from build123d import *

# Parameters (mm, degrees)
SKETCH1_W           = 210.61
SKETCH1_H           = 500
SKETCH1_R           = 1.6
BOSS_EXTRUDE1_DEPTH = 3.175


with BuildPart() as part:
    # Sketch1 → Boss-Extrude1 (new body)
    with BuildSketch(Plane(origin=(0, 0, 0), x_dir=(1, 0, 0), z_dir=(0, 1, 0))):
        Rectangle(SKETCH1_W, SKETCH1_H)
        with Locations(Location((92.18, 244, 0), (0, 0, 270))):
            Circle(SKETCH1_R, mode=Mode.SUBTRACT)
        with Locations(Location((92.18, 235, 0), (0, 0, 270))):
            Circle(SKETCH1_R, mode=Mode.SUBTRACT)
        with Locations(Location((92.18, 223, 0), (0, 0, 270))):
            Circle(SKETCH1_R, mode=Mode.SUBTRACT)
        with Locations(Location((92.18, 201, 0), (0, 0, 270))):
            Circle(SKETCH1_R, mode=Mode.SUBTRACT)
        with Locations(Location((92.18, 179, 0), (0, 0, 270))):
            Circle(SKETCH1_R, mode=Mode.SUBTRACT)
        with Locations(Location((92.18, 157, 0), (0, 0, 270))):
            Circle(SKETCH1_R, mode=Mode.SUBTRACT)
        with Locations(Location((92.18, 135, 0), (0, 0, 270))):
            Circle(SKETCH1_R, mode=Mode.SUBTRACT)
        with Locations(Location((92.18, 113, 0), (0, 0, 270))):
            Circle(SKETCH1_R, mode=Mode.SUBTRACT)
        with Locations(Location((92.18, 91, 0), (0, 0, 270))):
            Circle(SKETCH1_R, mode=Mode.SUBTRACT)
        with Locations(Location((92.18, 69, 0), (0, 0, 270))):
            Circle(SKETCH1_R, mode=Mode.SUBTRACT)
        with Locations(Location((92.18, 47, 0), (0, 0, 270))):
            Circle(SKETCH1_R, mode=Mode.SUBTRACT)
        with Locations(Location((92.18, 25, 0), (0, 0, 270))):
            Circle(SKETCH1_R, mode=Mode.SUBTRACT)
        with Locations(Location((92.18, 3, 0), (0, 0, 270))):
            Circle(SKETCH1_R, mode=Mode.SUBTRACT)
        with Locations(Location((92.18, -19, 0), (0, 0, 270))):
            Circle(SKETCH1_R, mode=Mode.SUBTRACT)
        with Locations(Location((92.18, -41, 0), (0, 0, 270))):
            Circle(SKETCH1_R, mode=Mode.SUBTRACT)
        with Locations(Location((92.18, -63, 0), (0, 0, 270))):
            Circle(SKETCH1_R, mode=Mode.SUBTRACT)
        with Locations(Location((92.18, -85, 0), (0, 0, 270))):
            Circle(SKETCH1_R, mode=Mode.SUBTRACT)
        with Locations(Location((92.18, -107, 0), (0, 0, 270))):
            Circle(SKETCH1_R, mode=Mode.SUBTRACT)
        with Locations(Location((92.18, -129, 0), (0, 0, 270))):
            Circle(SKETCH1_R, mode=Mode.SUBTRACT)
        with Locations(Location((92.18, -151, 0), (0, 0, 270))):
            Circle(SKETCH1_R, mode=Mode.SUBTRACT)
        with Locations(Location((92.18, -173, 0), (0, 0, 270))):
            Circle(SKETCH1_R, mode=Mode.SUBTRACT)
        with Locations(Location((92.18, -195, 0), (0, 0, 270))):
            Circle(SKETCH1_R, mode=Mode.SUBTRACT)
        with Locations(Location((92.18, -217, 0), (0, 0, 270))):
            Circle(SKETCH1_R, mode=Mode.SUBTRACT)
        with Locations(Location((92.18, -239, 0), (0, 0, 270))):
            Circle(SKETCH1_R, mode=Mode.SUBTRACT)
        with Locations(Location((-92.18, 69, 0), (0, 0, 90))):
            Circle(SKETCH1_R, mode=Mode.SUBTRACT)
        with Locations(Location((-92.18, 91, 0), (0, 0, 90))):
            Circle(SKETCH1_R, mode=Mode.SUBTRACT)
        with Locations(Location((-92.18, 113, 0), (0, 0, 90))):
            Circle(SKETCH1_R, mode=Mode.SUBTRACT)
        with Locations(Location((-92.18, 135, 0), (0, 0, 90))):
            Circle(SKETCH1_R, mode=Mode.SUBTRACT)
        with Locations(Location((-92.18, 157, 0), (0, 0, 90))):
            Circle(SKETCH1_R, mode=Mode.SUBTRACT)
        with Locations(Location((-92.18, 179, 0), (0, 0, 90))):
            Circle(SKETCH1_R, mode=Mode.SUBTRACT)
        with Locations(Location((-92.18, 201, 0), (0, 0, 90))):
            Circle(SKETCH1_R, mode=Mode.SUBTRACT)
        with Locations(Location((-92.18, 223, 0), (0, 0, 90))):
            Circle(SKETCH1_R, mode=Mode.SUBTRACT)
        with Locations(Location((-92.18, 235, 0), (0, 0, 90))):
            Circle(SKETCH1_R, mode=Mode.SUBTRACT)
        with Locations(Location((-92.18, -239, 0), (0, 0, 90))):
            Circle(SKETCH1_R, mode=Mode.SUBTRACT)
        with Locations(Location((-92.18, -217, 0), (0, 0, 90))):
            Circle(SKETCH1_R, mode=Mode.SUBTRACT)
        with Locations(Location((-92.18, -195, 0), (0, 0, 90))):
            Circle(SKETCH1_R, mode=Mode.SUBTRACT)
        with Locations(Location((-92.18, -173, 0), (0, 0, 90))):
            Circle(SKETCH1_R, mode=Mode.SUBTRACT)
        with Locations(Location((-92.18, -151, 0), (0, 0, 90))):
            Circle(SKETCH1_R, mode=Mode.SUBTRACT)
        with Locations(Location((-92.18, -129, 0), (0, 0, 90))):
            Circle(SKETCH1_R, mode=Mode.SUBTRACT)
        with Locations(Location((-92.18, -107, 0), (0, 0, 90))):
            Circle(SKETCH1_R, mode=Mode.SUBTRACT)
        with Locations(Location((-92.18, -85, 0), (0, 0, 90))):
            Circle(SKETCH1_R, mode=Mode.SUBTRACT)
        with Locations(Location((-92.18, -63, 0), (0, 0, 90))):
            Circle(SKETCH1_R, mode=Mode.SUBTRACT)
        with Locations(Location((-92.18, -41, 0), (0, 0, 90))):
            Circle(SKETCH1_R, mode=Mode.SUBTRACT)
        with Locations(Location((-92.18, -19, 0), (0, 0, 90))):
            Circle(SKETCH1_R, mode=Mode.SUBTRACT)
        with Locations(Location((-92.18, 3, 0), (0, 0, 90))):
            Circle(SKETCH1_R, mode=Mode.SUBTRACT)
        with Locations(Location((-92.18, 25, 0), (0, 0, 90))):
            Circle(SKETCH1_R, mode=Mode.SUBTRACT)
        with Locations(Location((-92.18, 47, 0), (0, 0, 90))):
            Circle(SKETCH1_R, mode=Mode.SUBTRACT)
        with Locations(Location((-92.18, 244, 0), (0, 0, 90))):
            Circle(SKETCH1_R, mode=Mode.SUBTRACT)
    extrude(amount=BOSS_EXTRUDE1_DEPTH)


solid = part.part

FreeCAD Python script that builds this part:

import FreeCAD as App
import Part
import Sketcher
from FreeCAD import Vector


def add_polygon(sketch, points):
    """Adds a closed chain of lines whose ends are joined by coincident constraints."""
    first, n = sketch.GeometryCount, len(points)
    for a, b in zip(points, points[1:] + points[:1]):
        sketch.addGeometry(Part.LineSegment(App.Vector(*a, 0), App.Vector(*b, 0)), False)
    for i in range(n):
        sketch.addConstraint(Sketcher.Constraint("Coincident", first + i, 2, first + (i + 1) % n, 1))

doc = App.newDocument("Part")
body = doc.addObject("PartDesign::Body", "Body")

sketch1 = body.newObject("Sketcher::SketchObject", "Sketch")
sketch1.AttachmentSupport = (doc.getObject("XZ_Plane"), [""])
sketch1.MapMode = "FlatFace"
add_polygon(sketch1, [(-105.305, -250), (-105.305, 250), (105.305, 250), (105.305, -250)])
sketch1.addGeometry(Part.Circle(Vector(-92.18, 239, 0), Vector(0, 0, 1), 1.6), False)
sketch1.addGeometry(Part.Circle(Vector(-92.18, 217, 0), Vector(0, 0, 1), 1.6), False)
sketch1.addGeometry(Part.Circle(Vector(-92.18, 195, 0), Vector(0, 0, 1), 1.6), False)
sketch1.addGeometry(Part.Circle(Vector(-92.18, 173, 0), Vector(0, 0, 1), 1.6), False)
sketch1.addGeometry(Part.Circle(Vector(-92.18, 151, 0), Vector(0, 0, 1), 1.6), False)
sketch1.addGeometry(Part.Circle(Vector(-92.18, 129, 0), Vector(0, 0, 1), 1.6), False)
sketch1.addGeometry(Part.Circle(Vector(-92.18, 107, 0), Vector(0, 0, 1), 1.6), False)
sketch1.addGeometry(Part.Circle(Vector(-92.18, 85, 0), Vector(0, 0, 1), 1.6), False)
sketch1.addGeometry(Part.Circle(Vector(-92.18, 63, 0), Vector(0, 0, 1), 1.6), False)
sketch1.addGeometry(Part.Circle(Vector(-92.18, 41, 0), Vector(0, 0, 1), 1.6), False)
sketch1.addGeometry(Part.Circle(Vector(-92.18, 19, 0), Vector(0, 0, 1), 1.6), False)
sketch1.addGeometry(Part.Circle(Vector(92.18, 239, 0), Vector(0, 0, 1), 1.6), False)
sketch1.addGeometry(Part.Circle(Vector(92.18, 217, 0), Vector(0, 0, 1), 1.6), False)
sketch1.addGeometry(Part.Circle(Vector(92.18, 195, 0), Vector(0, 0, 1), 1.6), False)
sketch1.addGeometry(Part.Circle(Vector(92.18, 173, 0), Vector(0, 0, 1), 1.6), False)
sketch1.addGeometry(Part.Circle(Vector(92.18, 151, 0), Vector(0, 0, 1), 1.6), False)
sketch1.addGeometry(Part.Circle(Vector(92.18, 129, 0), Vector(0, 0, 1), 1.6), False)
sketch1.addGeometry(Part.Circle(Vector(92.18, 107, 0), Vector(0, 0, 1), 1.6), False)
sketch1.addGeometry(Part.Circle(Vector(92.18, 85, 0), Vector(0, 0, 1), 1.6), False)
sketch1.addGeometry(Part.Circle(Vector(92.18, 63, 0), Vector(0, 0, 1), 1.6), False)
sketch1.addGeometry(Part.Circle(Vector(92.18, 41, 0), Vector(0, 0, 1), 1.6), False)
sketch1.addGeometry(Part.Circle(Vector(92.18, 19, 0), Vector(0, 0, 1), 1.6), False)
sketch1.addGeometry(Part.Circle(Vector(-92.18, -3, 0), Vector(0, 0, 1), 1.6), False)
sketch1.addGeometry(Part.Circle(Vector(-92.18, -25, 0), Vector(0, 0, 1), 1.6), False)
sketch1.addGeometry(Part.Circle(Vector(-92.18, -47, 0), Vector(0, 0, 1), 1.6), False)
sketch1.addGeometry(Part.Circle(Vector(-92.18, -69, 0), Vector(0, 0, 1), 1.6), False)
sketch1.addGeometry(Part.Circle(Vector(-92.18, -91, 0), Vector(0, 0, 1), 1.6), False)
sketch1.addGeometry(Part.Circle(Vector(-92.18, -113, 0), Vector(0, 0, 1), 1.6), False)
sketch1.addGeometry(Part.Circle(Vector(-92.18, -135, 0), Vector(0, 0, 1), 1.6), False)
sketch1.addGeometry(Part.Circle(Vector(-92.18, -157, 0), Vector(0, 0, 1), 1.6), False)
sketch1.addGeometry(Part.Circle(Vector(-92.18, -179, 0), Vector(0, 0, 1), 1.6), False)
sketch1.addGeometry(Part.Circle(Vector(-92.18, -201, 0), Vector(0, 0, 1), 1.6), False)
sketch1.addGeometry(Part.Circle(Vector(-92.18, -223, 0), Vector(0, 0, 1), 1.6), False)
sketch1.addGeometry(Part.Circle(Vector(-92.18, -235, 0), Vector(0, 0, 1), 1.6), False)
sketch1.addGeometry(Part.Circle(Vector(-92.18, -244, 0), Vector(0, 0, 1), 1.6), False)
sketch1.addGeometry(Part.Circle(Vector(92.18, -3, 0), Vector(0, 0, 1), 1.6), False)
sketch1.addGeometry(Part.Circle(Vector(92.18, -25, 0), Vector(0, 0, 1), 1.6), False)
sketch1.addGeometry(Part.Circle(Vector(92.18, -47, 0), Vector(0, 0, 1), 1.6), False)
sketch1.addGeometry(Part.Circle(Vector(92.18, -69, 0), Vector(0, 0, 1), 1.6), False)
sketch1.addGeometry(Part.Circle(Vector(92.18, -91, 0), Vector(0, 0, 1), 1.6), False)
sketch1.addGeometry(Part.Circle(Vector(92.18, -113, 0), Vector(0, 0, 1), 1.6), False)
sketch1.addGeometry(Part.Circle(Vector(92.18, -135, 0), Vector(0, 0, 1), 1.6), False)
sketch1.addGeometry(Part.Circle(Vector(92.18, -157, 0), Vector(0, 0, 1), 1.6), False)
sketch1.addGeometry(Part.Circle(Vector(92.18, -179, 0), Vector(0, 0, 1), 1.6), False)
sketch1.addGeometry(Part.Circle(Vector(92.18, -201, 0), Vector(0, 0, 1), 1.6), False)
sketch1.addGeometry(Part.Circle(Vector(92.18, -223, 0), Vector(0, 0, 1), 1.6), False)
sketch1.addGeometry(Part.Circle(Vector(92.18, -235, 0), Vector(0, 0, 1), 1.6), False)
sketch1.addGeometry(Part.Circle(Vector(92.18, -244, 0), Vector(0, 0, 1), 1.6), False)
sketch1.addConstraint([
    Sketcher.Constraint("Vertical", 0),
    Sketcher.Constraint("Horizontal", 1),
    Sketcher.Constraint("Vertical", 2),
    Sketcher.Constraint("Horizontal", 3),
    Sketcher.Constraint("Equal", 4, 5),
    Sketcher.Constraint("Equal", 5, 6),
    Sketcher.Constraint("Equal", 6, 7),
    Sketcher.Constraint("Equal", 7, 8),
    Sketcher.Constraint("Equal", 8, 9),
    Sketcher.Constraint("Equal", 9, 10),
    Sketcher.Constraint("Equal", 10, 11),
    Sketcher.Constraint("Equal", 11, 12),
    Sketcher.Constraint("Equal", 12, 13),
    Sketcher.Constraint("Equal", 13, 14),
    Sketcher.Constraint("Equal", 14, 15),
    Sketcher.Constraint("Equal", 15, 16),
    Sketcher.Constraint("Equal", 16, 17),
    Sketcher.Constraint("Equal", 17, 18),
    Sketcher.Constraint("Equal", 18, 19),
    Sketcher.Constraint("Equal", 19, 20),
    Sketcher.Constraint("Equal", 20, 21),
    Sketcher.Constraint("Equal", 21, 22),
    Sketcher.Constraint("Equal", 22, 23),
    Sketcher.Constraint("Equal", 23, 24),
    Sketcher.Constraint("Equal", 24, 25),
    Sketcher.Constraint("Equal", 25, 26),
    Sketcher.Constraint("Equal", 26, 27),
    Sketcher.Constraint("Equal", 27, 28),
    Sketcher.Constraint("Equal", 28, 29),
    Sketcher.Constraint("Equal", 29, 30),
    Sketcher.Constraint("Equal", 30, 31),
    Sketcher.Constraint("Equal", 31, 32),
    Sketcher.Constraint("Equal", 32, 33),
    Sketcher.Constraint("Equal", 33, 34),
    Sketcher.Constraint("Equal", 34, 35),
    Sketcher.Constraint("Equal", 35, 36),
    Sketcher.Constraint("Equal", 36, 37),
    Sketcher.Constraint("Equal", 37, 38),
    Sketcher.Constraint("Equal", 38, 39),
    Sketcher.Constraint("Equal", 39, 40),
    Sketcher.Constraint("Equal", 40, 41),
    Sketcher.Constraint("Equal", 41, 42),
    Sketcher.Constraint("Equal", 42, 43),
    Sketcher.Constraint("Equal", 43, 44),
    Sketcher.Constraint("Equal", 44, 45),
    Sketcher.Constraint("Equal", 45, 46),
    Sketcher.Constraint("Equal", 46, 47),
    Sketcher.Constraint("Equal", 47, 48),
    Sketcher.Constraint("Equal", 48, 49),
    Sketcher.Constraint("Equal", 49, 50),
    Sketcher.Constraint("Equal", 50, 51),
    Sketcher.Constraint("Symmetric", 0, 2, 2, 2, -1, 1),
    Sketcher.Constraint("Symmetric", 4, 3, 15, 3, -2),
    Sketcher.Constraint("Symmetric", 5, 3, 16, 3, -2),
    Sketcher.Constraint("Symmetric", 6, 3, 17, 3, -2),
    Sketcher.Constraint("Symmetric", 7, 3, 18, 3, -2),
    Sketcher.Constraint("Symmetric", 8, 3, 19, 3, -2),
    Sketcher.Constraint("Symmetric", 9, 3, 20, 3, -2),
    Sketcher.Constraint("Symmetric", 10, 3, 21, 3, -2),
    Sketcher.Constraint("Symmetric", 11, 3, 22, 3, -2),
    Sketcher.Constraint("Symmetric", 12, 3, 23, 3, -2),
    Sketcher.Constraint("Symmetric", 13, 3, 24, 3, -2),
    Sketcher.Constraint("Symmetric", 14, 3, 25, 3, -2),
    Sketcher.Constraint("Symmetric", 26, 3, 39, 3, -2),
    Sketcher.Constraint("Symmetric", 27, 3, 40, 3, -2),
    Sketcher.Constraint("Symmetric", 28, 3, 41, 3, -2),
    Sketcher.Constraint("Symmetric", 29, 3, 42, 3, -2),
    Sketcher.Constraint("Symmetric", 30, 3, 43, 3, -2),
    Sketcher.Constraint("Symmetric", 31, 3, 44, 3, -2),
    Sketcher.Constraint("Symmetric", 32, 3, 45, 3, -2),
    Sketcher.Constraint("Symmetric", 33, 3, 46, 3, -2),
    Sketcher.Constraint("Symmetric", 34, 3, 47, 3, -2),
    Sketcher.Constraint("Symmetric", 35, 3, 48, 3, -2),
    Sketcher.Constraint("Symmetric", 36, 3, 49, 3, -2),
    Sketcher.Constraint("Symmetric", 37, 3, 50, 3, -2),
    Sketcher.Constraint("Symmetric", 38, 3, 51, 3, -2),
    Sketcher.Constraint("Vertical", 4, 3, 5, 3),
    Sketcher.Constraint("Vertical", 5, 3, 6, 3),
    Sketcher.Constraint("Vertical", 6, 3, 7, 3),
    Sketcher.Constraint("Vertical", 7, 3, 8, 3),
    Sketcher.Constraint("Vertical", 8, 3, 9, 3),
    Sketcher.Constraint("Vertical", 9, 3, 10, 3),
    Sketcher.Constraint("Vertical", 10, 3, 11, 3),
    Sketcher.Constraint("Vertical", 11, 3, 12, 3),
    Sketcher.Constraint("Vertical", 12, 3, 13, 3),
    Sketcher.Constraint("Vertical", 13, 3, 14, 3),
    Sketcher.Constraint("Vertical", 14, 3, 26, 3),
    Sketcher.Constraint("Vertical", 26, 3, 27, 3),
    Sketcher.Constraint("Vertical", 27, 3, 28, 3),
    Sketcher.Constraint("Vertical", 28, 3, 29, 3),
    Sketcher.Constraint("Vertical", 29, 3, 30, 3),
    Sketcher.Constraint("Vertical", 30, 3, 31, 3),
    Sketcher.Constraint("Vertical", 31, 3, 32, 3),
    Sketcher.Constraint("Vertical", 32, 3, 33, 3),
    Sketcher.Constraint("Vertical", 33, 3, 34, 3),
    Sketcher.Constraint("Vertical", 34, 3, 35, 3),
    Sketcher.Constraint("Vertical", 35, 3, 36, 3),
    Sketcher.Constraint("Vertical", 36, 3, 37, 3),
    Sketcher.Constraint("Vertical", 37, 3, 38, 3),
    Sketcher.Constraint("Diameter", 4, 3.2),
    Sketcher.Constraint("DistanceY", 0, 1, 0, 2, 500.0),
    Sketcher.Constraint("DistanceY", -1, 1, 4, 3, 239.0),
    Sketcher.Constraint("DistanceY", -1, 1, 5, 3, 217.0),
    Sketcher.Constraint("DistanceY", -1, 1, 6, 3, 195.0),
    Sketcher.Constraint("DistanceY", -1, 1, 7, 3, 173.0),
    Sketcher.Constraint("DistanceY", -1, 1, 8, 3, 151.0),
    Sketcher.Constraint("DistanceY", -1, 1, 9, 3, 129.0),
    Sketcher.Constraint("DistanceY", -1, 1, 10, 3, 107.0),
    Sketcher.Constraint("DistanceY", -1, 1, 11, 3, 85.0),
    Sketcher.Constraint("DistanceY", -1, 1, 12, 3, 63.0),
    Sketcher.Constraint("DistanceY", -1, 1, 13, 3, 41.0),
    Sketcher.Constraint("DistanceY", -1, 1, 14, 3, 19.0),
    Sketcher.Constraint("DistanceY", 26, 3, -1, 1, 3.0),
    Sketcher.Constraint("DistanceY", 27, 3, -1, 1, 25.0),
    Sketcher.Constraint("DistanceY", 28, 3, -1, 1, 47.0),
    Sketcher.Constraint("DistanceY", 29, 3, -1, 1, 69.0),
    Sketcher.Constraint("DistanceY", 30, 3, -1, 1, 91.0),
    Sketcher.Constraint("DistanceY", 31, 3, -1, 1, 113.0),
    Sketcher.Constraint("DistanceY", 32, 3, -1, 1, 135.0),
    Sketcher.Constraint("DistanceY", 33, 3, -1, 1, 157.0),
    Sketcher.Constraint("DistanceY", 34, 3, -1, 1, 179.0),
    Sketcher.Constraint("DistanceY", 35, 3, -1, 1, 201.0),
    Sketcher.Constraint("DistanceY", 36, 3, -1, 1, 223.0),
    Sketcher.Constraint("DistanceY", 37, 3, -1, 1, 235.0),
    Sketcher.Constraint("DistanceY", 38, 3, -1, 1, 244.0),
    Sketcher.Constraint("DistanceX", 1, 1, 1, 2, 210.61),
    Sketcher.Constraint("DistanceX", 4, 3, -1, 1, 92.18),
])
pad1 = body.newObject("PartDesign::Pad", "Pad")
pad1.Profile = sketch1
pad1.Length = 3.175
pad1.Reversed = True

doc.recompute()
